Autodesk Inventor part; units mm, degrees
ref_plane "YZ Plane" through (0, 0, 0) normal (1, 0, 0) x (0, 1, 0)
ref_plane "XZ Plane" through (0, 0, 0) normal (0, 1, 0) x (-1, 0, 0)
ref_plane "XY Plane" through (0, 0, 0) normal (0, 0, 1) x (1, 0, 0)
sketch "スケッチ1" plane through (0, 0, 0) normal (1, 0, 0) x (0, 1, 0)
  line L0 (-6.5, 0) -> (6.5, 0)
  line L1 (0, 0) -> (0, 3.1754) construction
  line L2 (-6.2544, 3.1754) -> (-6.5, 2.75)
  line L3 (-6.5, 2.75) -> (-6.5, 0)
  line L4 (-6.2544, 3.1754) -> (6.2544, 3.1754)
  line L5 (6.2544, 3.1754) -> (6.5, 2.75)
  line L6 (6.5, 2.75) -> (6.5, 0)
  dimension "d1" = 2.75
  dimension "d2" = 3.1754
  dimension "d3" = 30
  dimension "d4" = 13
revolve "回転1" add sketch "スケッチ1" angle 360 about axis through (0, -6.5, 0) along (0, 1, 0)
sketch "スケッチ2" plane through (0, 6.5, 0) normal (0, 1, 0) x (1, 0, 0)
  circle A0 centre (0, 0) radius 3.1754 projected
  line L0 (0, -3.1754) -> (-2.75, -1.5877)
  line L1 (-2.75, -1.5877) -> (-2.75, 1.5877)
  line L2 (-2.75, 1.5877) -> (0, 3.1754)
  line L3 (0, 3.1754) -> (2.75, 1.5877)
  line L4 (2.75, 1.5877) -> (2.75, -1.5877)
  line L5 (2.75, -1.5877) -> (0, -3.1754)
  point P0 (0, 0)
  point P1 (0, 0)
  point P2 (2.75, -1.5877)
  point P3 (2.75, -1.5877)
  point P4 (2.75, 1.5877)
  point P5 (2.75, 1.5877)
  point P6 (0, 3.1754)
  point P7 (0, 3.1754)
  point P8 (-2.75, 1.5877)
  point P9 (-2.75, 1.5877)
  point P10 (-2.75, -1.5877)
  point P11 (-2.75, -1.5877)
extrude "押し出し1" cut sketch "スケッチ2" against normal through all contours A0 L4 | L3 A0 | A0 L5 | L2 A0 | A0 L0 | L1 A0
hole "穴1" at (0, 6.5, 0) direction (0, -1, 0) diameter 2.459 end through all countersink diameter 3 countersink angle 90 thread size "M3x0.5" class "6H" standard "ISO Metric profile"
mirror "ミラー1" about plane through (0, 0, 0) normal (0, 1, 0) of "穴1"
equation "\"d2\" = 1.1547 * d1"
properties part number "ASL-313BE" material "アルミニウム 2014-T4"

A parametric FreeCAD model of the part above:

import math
import FreeCAD as App
import Part
import Sketcher

V = App.Vector
Q = App.Units.Quantity


def add_polygon(sketch, points):
    """Adds a closed chain of lines whose ends are joined by coincident constraints."""
    first, n = sketch.GeometryCount, len(points)
    for a, b in zip(points, points[1:] + points[:1]):
        sketch.addGeometry(Part.LineSegment(App.Vector(*a, 0), App.Vector(*b, 0)), False)
    for i in range(n):
        sketch.addConstraint(Sketcher.Constraint("Coincident", first + i, 2, first + (i + 1) % n, 1))

doc = App.newDocument("Part")
body = doc.addObject("PartDesign::Body", "Body")

sketch1 = body.newObject("Sketcher::SketchObject", "Sketch")
sketch1.AttachmentSupport = (doc.getObject("YZ_Plane"), [""])
sketch1.MapMode = "FlatFace"
add_polygon(sketch1, [(-6.5, 2.75), (-6.5, 0), (6.5, 0), (6.5, 2.75), (6.25, 3.18), (-6.25, 3.18)])
sketch1.addConstraint([
    Sketcher.Constraint("Vertical", 0),
    Sketcher.Constraint("Horizontal", 1),
    Sketcher.Constraint("Vertical", 2),
    Sketcher.Constraint("Horizontal", 4),
    Sketcher.Constraint("Symmetric", 0, 2, 1, 2, -1, 1),
    Sketcher.Constraint("Horizontal", 2, 2, 5, 2),
    Sketcher.Constraint("Equal", 3, 5),
    Sketcher.Constraint("DistanceX", 1, 1, 1, 2, Q("13 mm")),
    Sketcher.Constraint("DistanceY", 0, 2, 0, 1, Q("2.75 mm")),
    Sketcher.Constraint("Angle", 3, Q("119.9995 deg")),
    Sketcher.Constraint("DistanceY", -1, 1, 3, 2, Q("3.1754 mm")),
])
revolution = body.newObject("PartDesign::Revolution", "Revolution")
revolution.Profile = sketch1
revolution.ReferenceAxis = (sketch1, ["H_Axis"])
revolution.Angle = 360

sketch2 = body.newObject("Sketcher::SketchObject", "Sketch001")
sketch2.AttachmentSupport = (doc.getObject("XZ_Plane"), [""])
sketch2.MapMode = "FlatFace"
sketch2.AttachmentOffset = App.Placement(V(0, 0, -6.5), App.Rotation())
sketch2.addGeometry([
    Part.ArcOfCircle(Part.Circle(V(0, 0, 0), V(0, 0, 1), 3.2), math.radians(-30), math.radians(30)),
    Part.LineSegment(V(2.8, 1.6, 0), V(2.8, -1.6, 0)),
    Part.LineSegment(V(0, -3.2, 0), V(2.8, -1.6, 0)),
    Part.ArcOfCircle(Part.Circle(V(0, 0, 0), V(0, 0, 1), 3.2), math.radians(-90), math.radians(-30)),
    Part.ArcOfCircle(Part.Circle(V(0, 0, 0), V(0, 0, 1), 3.2), math.radians(30), math.radians(90)),
    Part.LineSegment(V(0, 3.2, 0), V(2.8, 1.6, 0)),
    Part.LineSegment(V(-2.8, -1.6, 0), V(0, -3.2, 0)),
    Part.ArcOfCircle(Part.Circle(V(0, 0, 0), V(0, 0, 1), 3.2), math.radians(-150), math.radians(-90)),
    Part.ArcOfCircle(Part.Circle(V(0, 0, 0), V(0, 0, 1), 3.2), math.radians(90), math.radians(150)),
    Part.LineSegment(V(0, 3.2, 0), V(-2.8, 1.6, 0)),
    Part.LineSegment(V(-2.8, 1.6, 0), V(-2.8, -1.6, 0)),
    Part.ArcOfCircle(Part.Circle(V(0, 0, 0), V(0, 0, 1), 3.2), math.radians(150), math.radians(210)),
], False)
sketch2.addConstraint([
    Sketcher.Constraint("Coincident", 0, 1, 1, 2),
    Sketcher.Constraint("Coincident", 1, 1, 0, 2),
    Sketcher.Constraint("Coincident", 2, 1, 3, 1),
    Sketcher.Constraint("Coincident", 3, 2, 2, 2),
    Sketcher.Constraint("Coincident", 4, 1, 5, 2),
    Sketcher.Constraint("Coincident", 5, 1, 4, 2),
    Sketcher.Constraint("Coincident", 6, 1, 7, 1),
    Sketcher.Constraint("Coincident", 7, 2, 6, 2),
    Sketcher.Constraint("Coincident", 8, 1, 9, 1),
    Sketcher.Constraint("Coincident", 9, 2, 8, 2),
    Sketcher.Constraint("Coincident", 10, 1, 11, 1),
    Sketcher.Constraint("Coincident", 11, 2, 10, 2),
    Sketcher.Constraint("Vertical", 1),
    Sketcher.Constraint("Vertical", 10),
    Sketcher.Constraint("Coincident", 0, 3, -1, 1),
    Sketcher.Constraint("Coincident", 3, 3, -1, 1),
    Sketcher.Constraint("Coincident", 4, 3, -1, 1),
    Sketcher.Constraint("Coincident", 7, 3, -1, 1),
    Sketcher.Constraint("Coincident", 8, 3, -1, 1),
    Sketcher.Constraint("Coincident", 11, 3, -1, 1),
    Sketcher.Constraint("Coincident", 3, 2, 0, 1),
    Sketcher.Constraint("Coincident", 4, 1, 1, 1),
    Sketcher.Constraint("Coincident", 7, 2, 2, 1),
    Sketcher.Constraint("Coincident", 8, 1, 5, 1),
    Sketcher.Constraint("Coincident", 10, 1, 9, 2),
    Sketcher.Constraint("PointOnObject", 2, 1, -2),
    Sketcher.Constraint("PointOnObject", 5, 1, -2),
    Sketcher.Constraint("Parallel", 5, 6),
    Sketcher.Constraint("Parallel", 2, 9),
    Sketcher.Constraint("Angle", 2, Q("29.9998 deg")),
    Sketcher.Constraint("Radius", 0, Q("3.1754 mm")),
])
pocket1 = body.newObject("PartDesign::Pocket", "Pocket")
pocket1.Profile = sketch2
pocket1.Type = "ThroughAll"
pocket1.Reversed = True

sketch3 = body.newObject("Sketcher::SketchObject", "Sketch002")
sketch3.AttachmentSupport = (doc.getObject("XZ_Plane"), [""])
sketch3.MapMode = "FlatFace"
sketch3.AttachmentOffset = App.Placement(V(0, 0, -6.5), App.Rotation())
sketch3.addGeometry(Part.Circle(V(0, 0, 0), V(0, 0, 1), 1.2), False)
sketch3.addConstraint([
    Sketcher.Constraint("Coincident", 0, 3, -1, 1),
    Sketcher.Constraint("Diameter", 0, Q("2.459 mm")),
])
doc.recompute()
hole = body.newObject("PartDesign::Hole", "Hole")
hole.Profile = sketch3
hole.ThreadType = "None"
hole.Diameter = 2.459
hole.DepthType = "ThroughAll"
hole.HoleCutType = "Countersink"
hole.HoleCutDiameter = 3
hole.HoleCutCountersinkAngle = 90
hole.Reversed = True
doc.recompute()

mirrored = body.newObject("PartDesign::Mirrored", "Mirrored")
mirrored.Originals = [hole]
mirrored.MirrorPlane = (doc.getObject("XZ_Plane"), [""])
body.Tip = mirrored

doc.recompute()
